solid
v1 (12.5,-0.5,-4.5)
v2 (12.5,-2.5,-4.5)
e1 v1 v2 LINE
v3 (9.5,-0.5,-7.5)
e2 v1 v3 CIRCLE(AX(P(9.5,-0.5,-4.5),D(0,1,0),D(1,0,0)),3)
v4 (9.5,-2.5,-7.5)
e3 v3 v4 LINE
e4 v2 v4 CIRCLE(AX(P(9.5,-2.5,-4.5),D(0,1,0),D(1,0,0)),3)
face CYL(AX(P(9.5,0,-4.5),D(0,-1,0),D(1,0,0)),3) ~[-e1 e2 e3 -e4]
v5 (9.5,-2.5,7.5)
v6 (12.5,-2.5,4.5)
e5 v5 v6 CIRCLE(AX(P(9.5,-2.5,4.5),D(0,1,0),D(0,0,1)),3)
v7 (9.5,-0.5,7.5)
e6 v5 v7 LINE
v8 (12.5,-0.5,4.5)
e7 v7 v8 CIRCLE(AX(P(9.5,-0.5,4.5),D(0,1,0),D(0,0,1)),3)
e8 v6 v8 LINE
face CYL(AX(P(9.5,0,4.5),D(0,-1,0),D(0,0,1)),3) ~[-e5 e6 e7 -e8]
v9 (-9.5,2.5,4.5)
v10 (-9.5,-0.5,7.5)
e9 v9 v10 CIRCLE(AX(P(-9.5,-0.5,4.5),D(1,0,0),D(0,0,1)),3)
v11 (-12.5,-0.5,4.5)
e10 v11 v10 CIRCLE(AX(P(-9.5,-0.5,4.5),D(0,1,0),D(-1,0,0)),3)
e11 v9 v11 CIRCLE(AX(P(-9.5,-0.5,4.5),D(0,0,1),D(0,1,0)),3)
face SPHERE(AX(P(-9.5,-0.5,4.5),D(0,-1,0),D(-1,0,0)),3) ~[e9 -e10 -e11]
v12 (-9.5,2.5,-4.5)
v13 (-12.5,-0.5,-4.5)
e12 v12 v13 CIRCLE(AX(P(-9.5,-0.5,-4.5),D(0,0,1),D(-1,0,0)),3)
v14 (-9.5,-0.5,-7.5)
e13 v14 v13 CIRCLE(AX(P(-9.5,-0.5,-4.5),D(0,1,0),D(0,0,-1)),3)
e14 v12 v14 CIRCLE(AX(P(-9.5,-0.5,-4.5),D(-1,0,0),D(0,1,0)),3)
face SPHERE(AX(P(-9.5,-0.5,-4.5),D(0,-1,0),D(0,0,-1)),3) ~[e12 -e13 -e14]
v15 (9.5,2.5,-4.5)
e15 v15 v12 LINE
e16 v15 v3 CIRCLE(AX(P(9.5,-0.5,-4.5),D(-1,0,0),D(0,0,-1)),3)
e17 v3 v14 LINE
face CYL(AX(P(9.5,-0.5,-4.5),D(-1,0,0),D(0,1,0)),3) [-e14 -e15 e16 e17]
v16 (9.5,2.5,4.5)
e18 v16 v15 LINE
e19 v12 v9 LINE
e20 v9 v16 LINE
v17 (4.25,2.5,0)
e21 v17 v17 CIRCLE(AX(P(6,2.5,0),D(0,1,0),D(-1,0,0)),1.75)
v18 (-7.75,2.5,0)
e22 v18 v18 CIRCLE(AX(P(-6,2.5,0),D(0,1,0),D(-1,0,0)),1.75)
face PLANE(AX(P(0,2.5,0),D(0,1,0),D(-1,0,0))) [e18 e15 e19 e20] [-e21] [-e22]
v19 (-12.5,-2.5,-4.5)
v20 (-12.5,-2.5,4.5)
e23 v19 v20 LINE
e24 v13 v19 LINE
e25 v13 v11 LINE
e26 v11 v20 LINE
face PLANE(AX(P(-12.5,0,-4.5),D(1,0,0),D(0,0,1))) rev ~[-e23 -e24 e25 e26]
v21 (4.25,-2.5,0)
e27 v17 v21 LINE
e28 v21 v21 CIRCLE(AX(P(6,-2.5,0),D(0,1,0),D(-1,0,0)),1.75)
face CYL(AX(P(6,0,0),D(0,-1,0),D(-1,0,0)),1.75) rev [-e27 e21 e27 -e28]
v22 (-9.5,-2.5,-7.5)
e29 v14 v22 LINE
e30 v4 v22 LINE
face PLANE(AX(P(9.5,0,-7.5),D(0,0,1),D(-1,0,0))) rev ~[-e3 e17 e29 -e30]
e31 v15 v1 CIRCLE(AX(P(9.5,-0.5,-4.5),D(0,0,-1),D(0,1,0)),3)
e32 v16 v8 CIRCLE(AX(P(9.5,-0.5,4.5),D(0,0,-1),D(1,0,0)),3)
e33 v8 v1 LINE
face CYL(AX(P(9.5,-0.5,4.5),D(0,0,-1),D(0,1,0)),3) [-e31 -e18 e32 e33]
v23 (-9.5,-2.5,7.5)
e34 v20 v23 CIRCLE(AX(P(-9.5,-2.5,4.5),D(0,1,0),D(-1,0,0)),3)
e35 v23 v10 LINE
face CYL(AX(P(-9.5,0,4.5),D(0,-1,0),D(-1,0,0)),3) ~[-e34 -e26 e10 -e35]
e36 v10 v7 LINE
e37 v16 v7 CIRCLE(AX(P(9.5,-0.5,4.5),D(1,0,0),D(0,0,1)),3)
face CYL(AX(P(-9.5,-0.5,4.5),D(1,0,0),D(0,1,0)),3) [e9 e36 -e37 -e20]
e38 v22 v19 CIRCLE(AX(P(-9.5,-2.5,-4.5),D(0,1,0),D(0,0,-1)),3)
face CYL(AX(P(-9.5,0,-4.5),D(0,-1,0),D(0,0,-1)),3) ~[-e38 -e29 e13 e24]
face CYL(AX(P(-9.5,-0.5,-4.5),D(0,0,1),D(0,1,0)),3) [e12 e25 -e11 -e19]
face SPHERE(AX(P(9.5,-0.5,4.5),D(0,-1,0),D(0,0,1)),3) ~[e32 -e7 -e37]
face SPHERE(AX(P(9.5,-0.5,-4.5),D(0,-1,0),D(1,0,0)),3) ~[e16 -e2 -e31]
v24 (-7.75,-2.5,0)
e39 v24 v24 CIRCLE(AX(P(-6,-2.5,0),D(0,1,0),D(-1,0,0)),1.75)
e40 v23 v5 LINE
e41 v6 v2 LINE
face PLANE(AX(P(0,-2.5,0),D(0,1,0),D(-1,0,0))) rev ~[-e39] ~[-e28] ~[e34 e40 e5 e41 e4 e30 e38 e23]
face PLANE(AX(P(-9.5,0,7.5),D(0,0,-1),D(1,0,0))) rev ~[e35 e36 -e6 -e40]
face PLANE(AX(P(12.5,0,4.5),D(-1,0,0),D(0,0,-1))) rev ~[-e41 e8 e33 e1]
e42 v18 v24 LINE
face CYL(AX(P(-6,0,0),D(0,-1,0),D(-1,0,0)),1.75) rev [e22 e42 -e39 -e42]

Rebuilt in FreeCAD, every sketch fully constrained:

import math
import FreeCAD as App
import Part
import Sketcher

V = App.Vector


def edges_at(feature, points):
    """Names of the edges that pass closest to the given points."""
    edges = feature.Shape.Edges
    near = lambda p: min(range(len(edges)), key=lambda i: edges[i].distToShape(Part.Vertex(*p))[0])
    return sorted({f"Edge{near(p) + 1}" for p in points})

doc = App.newDocument("Part")
params = doc.addObject("Spreadsheet::Sheet", "Params")
for row, (alias, value) in enumerate([
    ("sketch1_radius", "3 mm"),
    ("sketch1_diameter", "3.5 mm"),
    ("pad1_length", "5 mm"),
    ("fillet_radius", "3 mm"),
], start=1):
    params.set(f"A{row}", alias)
    params.set(f"B{row}", "=" + value)
    params.setAlias(f"B{row}", alias)

body = doc.addObject("PartDesign::Body", "Body")

sketch1 = doc.addObject("Sketcher::SketchObject", "Sketch")
body.addObject(sketch1)
sketch1.AttachmentSupport = (doc.XZ_Plane, [""])
sketch1.MapMode = "FlatFace"
sketch1.addGeometry(Part.ArcOfCircle(Part.Circle(V(-9.5, 4.5, 0), V(0, 0, 1), 3), math.radians(90), math.radians(180)), False)
sketch1.addGeometry(Part.LineSegment(V(-9.5, 7.5, 0), V(9.5, 7.5, 0)), False)
sketch1.addGeometry(Part.ArcOfCircle(Part.Circle(V(9.5, 4.5, 0), V(0, 0, 1), 3), math.radians(0), math.radians(90)), False)
sketch1.addGeometry(Part.LineSegment(V(12.5, 4.5, 0), V(12.5, -4.5, 0)), False)
sketch1.addGeometry(Part.ArcOfCircle(Part.Circle(V(9.5, -4.5, 0), V(0, 0, 1), 3), math.radians(-90), math.radians(0)), False)
sketch1.addGeometry(Part.LineSegment(V(9.5, -7.5, 0), V(-9.5, -7.5, 0)), False)
sketch1.addGeometry(Part.ArcOfCircle(Part.Circle(V(-9.5, -4.5, 0), V(0, 0, 1), 3), math.radians(180), math.radians(270)), False)
sketch1.addGeometry(Part.LineSegment(V(-12.5, -4.5, 0), V(-12.5, 4.5, 0)), False)
sketch1.addGeometry(Part.Circle(V(6, 0, 0), V(0, 0, 1), 1.75), False)
sketch1.addGeometry(Part.Circle(V(-6, 0, 0), V(0, 0, 1), 1.75), False)
sketch1.addConstraint(Sketcher.Constraint("Tangent", 0, 1, 1, 1))
sketch1.addConstraint(Sketcher.Constraint("Tangent", 1, 2, 2, 2))
sketch1.addConstraint(Sketcher.Constraint("Tangent", 2, 1, 3, 1))
sketch1.addConstraint(Sketcher.Constraint("Tangent", 3, 2, 4, 2))
sketch1.addConstraint(Sketcher.Constraint("Tangent", 4, 1, 5, 1))
sketch1.addConstraint(Sketcher.Constraint("Tangent", 5, 2, 6, 2))
sketch1.addConstraint(Sketcher.Constraint("Tangent", 6, 1, 7, 1))
sketch1.addConstraint(Sketcher.Constraint("Tangent", 7, 2, 0, 2))
sketch1.addConstraint(Sketcher.Constraint("Horizontal", 1))
sketch1.addConstraint(Sketcher.Constraint("Vertical", 3))
sketch1.addConstraint(Sketcher.Constraint("Horizontal", 5))
sketch1.addConstraint(Sketcher.Constraint("Vertical", 7))
sketch1.addConstraint(Sketcher.Constraint("Equal", 0, 2))
sketch1.addConstraint(Sketcher.Constraint("Equal", 2, 4))
sketch1.addConstraint(Sketcher.Constraint("Equal", 4, 6))
sketch1.addConstraint(Sketcher.Constraint("Equal", 8, 9))
sketch1.addConstraint(Sketcher.Constraint("Symmetric", 0, 3, 4, 3, -1, 1))
sketch1.addConstraint(Sketcher.Constraint("Symmetric", 8, 3, 9, 3, -1, 1))
sketch1.addConstraint(Sketcher.Constraint("PointOnObject", 8, 3, -1))
sketch1.addConstraint(Sketcher.Constraint("Radius", 0, 3.0))
sketch1.addConstraint(Sketcher.Constraint("Diameter", 8, 3.5))
sketch1.addConstraint(Sketcher.Constraint("DistanceX", -1, 1, 8, 3, 6.0))
sketch1.addConstraint(Sketcher.Constraint("DistanceY", 6, 3, 0, 1, 12.0))
sketch1.addConstraint(Sketcher.Constraint("DistanceX", 8, 3, 2, 3, 3.5))
sketch1.setExpression("Constraints[19]", "Params.sketch1_radius")
sketch1.setExpression("Constraints[20]", "Params.sketch1_diameter")
pad1 = doc.addObject("PartDesign::Pad", "Pad")
body.addObject(pad1)
pad1.Profile = sketch1
pad1.setExpression("Length", "Params.pad1_length")
pad1.Midplane = True
doc.recompute()

fillet = doc.addObject("PartDesign::Fillet", "Fillet")
body.addObject(fillet)
fillet.Base = (pad1, edges_at(pad1, [
    (11.621, 2.5, 6.621),
    (12.5, 2.5, 0),
    (11.621, 2.5, -6.621),
    (0, 2.5, -7.5),
    (-11.621, 2.5, -6.621),
    (-12.5, 2.5, 0),
    (-11.621, 2.5, 6.621),
    (0, 2.5, 7.5),
]))
fillet.setExpression("Radius", "Params.fillet_radius")

doc.recompute()
